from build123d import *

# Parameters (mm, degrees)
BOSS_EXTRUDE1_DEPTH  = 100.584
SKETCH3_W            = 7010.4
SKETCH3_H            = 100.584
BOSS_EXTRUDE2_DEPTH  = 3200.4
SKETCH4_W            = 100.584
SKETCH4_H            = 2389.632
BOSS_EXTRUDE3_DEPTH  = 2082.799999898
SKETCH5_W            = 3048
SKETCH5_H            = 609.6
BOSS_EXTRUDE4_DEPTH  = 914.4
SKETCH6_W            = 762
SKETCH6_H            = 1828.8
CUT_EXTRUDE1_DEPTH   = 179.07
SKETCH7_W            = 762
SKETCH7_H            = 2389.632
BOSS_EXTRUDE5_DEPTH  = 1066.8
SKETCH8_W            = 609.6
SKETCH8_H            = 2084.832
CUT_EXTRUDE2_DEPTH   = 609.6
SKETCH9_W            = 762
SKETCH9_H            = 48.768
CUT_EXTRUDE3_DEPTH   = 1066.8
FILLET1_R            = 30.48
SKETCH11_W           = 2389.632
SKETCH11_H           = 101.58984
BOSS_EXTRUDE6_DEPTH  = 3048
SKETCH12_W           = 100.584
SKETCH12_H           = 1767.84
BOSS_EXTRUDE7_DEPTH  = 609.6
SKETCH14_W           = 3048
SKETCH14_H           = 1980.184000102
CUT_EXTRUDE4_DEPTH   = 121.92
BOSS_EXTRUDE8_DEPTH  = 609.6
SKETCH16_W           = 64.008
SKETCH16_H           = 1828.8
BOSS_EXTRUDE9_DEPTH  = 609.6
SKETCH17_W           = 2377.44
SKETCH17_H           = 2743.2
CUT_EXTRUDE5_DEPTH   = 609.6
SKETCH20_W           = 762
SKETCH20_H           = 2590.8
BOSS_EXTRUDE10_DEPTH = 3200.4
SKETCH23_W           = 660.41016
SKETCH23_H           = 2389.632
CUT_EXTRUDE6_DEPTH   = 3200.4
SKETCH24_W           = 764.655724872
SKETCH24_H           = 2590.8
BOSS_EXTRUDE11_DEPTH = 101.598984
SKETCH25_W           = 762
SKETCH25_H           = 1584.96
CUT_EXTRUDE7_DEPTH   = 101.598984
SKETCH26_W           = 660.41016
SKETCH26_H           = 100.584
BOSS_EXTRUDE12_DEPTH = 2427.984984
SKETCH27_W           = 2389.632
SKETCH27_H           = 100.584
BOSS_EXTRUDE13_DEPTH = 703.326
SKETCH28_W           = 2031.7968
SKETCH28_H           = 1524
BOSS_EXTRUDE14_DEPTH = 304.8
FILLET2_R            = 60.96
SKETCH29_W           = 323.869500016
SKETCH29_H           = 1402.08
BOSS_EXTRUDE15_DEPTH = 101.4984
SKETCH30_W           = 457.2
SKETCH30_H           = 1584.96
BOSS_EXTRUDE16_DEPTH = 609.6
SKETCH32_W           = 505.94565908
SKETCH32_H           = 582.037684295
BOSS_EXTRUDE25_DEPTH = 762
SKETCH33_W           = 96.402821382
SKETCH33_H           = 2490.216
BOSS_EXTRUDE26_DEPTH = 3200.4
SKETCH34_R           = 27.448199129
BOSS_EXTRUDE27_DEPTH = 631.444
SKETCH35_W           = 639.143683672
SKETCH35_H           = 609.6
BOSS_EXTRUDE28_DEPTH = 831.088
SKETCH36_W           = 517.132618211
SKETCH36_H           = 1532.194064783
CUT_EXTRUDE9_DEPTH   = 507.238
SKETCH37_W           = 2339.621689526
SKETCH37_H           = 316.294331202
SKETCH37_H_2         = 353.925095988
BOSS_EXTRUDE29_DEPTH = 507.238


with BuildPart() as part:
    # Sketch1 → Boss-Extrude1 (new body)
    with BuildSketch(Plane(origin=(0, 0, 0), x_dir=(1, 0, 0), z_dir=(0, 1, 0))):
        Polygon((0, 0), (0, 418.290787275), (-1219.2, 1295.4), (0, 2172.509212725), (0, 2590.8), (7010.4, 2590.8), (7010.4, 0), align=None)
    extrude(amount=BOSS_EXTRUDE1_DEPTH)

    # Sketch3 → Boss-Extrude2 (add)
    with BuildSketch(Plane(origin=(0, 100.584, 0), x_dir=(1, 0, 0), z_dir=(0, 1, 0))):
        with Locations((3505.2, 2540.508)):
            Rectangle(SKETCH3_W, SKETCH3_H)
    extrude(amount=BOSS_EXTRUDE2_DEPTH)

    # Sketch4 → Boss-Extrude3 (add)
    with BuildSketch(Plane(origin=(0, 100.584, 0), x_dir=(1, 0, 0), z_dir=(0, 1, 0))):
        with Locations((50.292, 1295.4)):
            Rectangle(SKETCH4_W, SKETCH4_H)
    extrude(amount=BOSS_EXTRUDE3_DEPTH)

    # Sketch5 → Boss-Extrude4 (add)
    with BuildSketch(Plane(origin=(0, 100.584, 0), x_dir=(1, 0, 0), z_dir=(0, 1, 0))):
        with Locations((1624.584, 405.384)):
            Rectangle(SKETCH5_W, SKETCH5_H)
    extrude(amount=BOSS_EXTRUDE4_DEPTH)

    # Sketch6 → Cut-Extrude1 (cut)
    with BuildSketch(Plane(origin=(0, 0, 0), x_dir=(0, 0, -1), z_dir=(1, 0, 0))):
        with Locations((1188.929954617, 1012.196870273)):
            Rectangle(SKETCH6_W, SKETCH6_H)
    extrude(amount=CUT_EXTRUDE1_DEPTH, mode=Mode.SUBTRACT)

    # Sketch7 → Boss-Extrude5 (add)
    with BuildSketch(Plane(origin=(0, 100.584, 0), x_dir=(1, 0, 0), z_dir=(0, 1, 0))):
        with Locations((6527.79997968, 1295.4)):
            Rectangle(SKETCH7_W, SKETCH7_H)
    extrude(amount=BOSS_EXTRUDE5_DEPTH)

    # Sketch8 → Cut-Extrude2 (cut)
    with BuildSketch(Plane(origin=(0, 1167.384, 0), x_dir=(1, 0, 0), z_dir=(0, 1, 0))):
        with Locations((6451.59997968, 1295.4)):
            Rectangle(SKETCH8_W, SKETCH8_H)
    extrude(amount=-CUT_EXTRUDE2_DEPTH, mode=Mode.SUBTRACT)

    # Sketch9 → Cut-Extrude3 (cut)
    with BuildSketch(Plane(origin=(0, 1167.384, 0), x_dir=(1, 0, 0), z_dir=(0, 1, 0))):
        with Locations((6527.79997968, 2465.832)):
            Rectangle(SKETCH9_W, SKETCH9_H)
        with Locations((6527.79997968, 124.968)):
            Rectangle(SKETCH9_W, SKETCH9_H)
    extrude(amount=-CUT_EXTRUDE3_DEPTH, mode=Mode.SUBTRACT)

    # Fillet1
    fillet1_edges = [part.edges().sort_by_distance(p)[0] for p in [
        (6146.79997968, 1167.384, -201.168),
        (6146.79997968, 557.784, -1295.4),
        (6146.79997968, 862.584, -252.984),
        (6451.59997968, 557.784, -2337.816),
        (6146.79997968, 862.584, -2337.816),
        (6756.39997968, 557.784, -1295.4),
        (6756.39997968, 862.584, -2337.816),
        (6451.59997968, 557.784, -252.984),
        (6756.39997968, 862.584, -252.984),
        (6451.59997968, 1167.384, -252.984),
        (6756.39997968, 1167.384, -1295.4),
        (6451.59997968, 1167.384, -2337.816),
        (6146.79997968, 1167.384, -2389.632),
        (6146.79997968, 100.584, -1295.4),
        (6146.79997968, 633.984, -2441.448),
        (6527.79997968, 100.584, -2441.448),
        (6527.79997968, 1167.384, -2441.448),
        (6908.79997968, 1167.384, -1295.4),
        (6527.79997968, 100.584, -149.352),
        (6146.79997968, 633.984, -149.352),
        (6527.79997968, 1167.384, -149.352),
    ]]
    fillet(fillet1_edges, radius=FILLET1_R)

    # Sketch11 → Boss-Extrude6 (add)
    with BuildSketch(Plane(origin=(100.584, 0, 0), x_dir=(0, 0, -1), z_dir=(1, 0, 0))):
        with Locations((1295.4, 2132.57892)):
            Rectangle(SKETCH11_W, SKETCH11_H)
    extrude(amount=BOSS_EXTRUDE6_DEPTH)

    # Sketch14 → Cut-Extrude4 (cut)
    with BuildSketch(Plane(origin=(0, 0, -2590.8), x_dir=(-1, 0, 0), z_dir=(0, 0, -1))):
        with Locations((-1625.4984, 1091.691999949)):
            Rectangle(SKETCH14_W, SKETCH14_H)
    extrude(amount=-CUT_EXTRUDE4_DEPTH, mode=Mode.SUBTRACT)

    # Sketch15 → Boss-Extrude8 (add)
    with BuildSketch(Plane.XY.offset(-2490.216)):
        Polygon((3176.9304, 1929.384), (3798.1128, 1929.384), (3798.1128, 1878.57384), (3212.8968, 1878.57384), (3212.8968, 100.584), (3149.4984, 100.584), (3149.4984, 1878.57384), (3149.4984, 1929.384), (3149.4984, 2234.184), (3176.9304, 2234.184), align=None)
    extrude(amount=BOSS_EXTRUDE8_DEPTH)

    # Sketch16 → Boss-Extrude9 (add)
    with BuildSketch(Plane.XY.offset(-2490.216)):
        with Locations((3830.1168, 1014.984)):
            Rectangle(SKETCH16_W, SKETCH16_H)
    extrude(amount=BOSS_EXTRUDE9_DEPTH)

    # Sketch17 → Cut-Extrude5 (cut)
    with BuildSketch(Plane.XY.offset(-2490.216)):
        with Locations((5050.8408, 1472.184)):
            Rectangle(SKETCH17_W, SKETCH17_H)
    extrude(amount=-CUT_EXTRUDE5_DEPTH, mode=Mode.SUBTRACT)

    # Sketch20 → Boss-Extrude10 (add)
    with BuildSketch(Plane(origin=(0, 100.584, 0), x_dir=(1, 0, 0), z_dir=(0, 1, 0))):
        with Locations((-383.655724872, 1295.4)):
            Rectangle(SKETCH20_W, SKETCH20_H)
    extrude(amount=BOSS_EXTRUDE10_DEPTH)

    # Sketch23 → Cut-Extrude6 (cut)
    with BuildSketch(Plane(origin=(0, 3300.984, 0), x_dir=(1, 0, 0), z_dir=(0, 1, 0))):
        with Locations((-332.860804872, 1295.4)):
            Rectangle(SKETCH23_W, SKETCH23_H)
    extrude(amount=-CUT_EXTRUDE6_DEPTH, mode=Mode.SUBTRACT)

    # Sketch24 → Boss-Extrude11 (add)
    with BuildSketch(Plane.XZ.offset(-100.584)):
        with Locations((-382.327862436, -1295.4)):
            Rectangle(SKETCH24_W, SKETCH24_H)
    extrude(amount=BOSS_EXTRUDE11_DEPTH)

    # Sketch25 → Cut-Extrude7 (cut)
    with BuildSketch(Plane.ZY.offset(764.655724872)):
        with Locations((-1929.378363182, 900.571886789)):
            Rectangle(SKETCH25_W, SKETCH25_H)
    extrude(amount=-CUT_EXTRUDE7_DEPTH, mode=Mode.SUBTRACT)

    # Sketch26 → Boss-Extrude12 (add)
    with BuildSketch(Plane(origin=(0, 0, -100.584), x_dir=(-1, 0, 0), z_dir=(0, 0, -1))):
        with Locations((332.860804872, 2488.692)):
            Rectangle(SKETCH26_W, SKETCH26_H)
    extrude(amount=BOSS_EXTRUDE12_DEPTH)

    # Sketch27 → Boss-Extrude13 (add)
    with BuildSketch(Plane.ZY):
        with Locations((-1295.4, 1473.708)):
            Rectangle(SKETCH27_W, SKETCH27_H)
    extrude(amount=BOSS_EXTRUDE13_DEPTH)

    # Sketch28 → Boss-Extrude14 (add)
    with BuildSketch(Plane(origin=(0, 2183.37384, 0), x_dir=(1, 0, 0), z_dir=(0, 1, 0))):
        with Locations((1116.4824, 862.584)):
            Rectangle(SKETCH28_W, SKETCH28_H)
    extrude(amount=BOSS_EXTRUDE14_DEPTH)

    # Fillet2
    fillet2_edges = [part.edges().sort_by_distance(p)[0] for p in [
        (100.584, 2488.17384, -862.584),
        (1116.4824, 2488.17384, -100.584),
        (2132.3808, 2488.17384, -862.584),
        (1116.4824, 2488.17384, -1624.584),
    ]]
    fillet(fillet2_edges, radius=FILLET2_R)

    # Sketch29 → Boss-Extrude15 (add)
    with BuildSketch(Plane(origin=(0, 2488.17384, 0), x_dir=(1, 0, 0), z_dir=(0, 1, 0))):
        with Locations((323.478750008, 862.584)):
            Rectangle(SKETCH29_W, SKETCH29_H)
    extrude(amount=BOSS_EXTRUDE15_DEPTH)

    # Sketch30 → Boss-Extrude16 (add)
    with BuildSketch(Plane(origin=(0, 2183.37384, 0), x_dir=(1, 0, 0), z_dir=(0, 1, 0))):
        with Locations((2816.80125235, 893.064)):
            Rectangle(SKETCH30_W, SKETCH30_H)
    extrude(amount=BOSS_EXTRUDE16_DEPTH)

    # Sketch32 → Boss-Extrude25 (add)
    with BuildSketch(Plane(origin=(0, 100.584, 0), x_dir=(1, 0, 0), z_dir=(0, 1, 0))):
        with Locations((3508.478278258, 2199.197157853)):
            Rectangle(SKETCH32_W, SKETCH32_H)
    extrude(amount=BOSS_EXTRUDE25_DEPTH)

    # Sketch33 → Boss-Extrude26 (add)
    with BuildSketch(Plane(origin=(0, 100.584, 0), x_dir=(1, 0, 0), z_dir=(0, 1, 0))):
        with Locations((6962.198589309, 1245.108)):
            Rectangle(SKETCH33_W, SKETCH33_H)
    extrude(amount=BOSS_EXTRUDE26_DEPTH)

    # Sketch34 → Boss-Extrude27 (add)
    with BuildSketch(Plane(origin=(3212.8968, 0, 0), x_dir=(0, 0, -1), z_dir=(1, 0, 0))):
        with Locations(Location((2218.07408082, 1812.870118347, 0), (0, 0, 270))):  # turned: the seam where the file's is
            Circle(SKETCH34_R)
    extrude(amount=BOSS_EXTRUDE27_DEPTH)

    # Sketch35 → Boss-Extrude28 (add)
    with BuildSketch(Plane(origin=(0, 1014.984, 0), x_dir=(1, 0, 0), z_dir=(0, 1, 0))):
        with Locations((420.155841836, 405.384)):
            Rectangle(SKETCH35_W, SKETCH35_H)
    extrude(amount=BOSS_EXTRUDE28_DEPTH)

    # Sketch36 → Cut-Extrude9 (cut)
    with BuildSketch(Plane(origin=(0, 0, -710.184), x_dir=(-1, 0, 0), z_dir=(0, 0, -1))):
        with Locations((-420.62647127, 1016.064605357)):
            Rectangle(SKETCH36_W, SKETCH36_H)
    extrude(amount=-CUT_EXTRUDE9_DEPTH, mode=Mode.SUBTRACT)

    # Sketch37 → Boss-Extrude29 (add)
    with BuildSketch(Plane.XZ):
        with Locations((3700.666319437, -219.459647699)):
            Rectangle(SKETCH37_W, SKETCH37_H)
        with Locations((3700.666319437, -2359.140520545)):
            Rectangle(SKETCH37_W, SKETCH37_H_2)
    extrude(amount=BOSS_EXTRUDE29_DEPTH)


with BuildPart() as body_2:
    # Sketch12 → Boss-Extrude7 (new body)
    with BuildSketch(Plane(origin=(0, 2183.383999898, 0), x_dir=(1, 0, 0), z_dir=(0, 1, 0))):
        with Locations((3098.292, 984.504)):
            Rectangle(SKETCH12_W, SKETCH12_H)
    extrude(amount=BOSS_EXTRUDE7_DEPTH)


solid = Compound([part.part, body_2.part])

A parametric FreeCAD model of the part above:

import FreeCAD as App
import Part
import Sketcher
from FreeCAD import Vector
Q = App.Units.Quantity


def edges_at(feature, points):
    """Names of the edges that pass closest to the given points."""
    edges = feature.Shape.Edges
    near = lambda p: min(range(len(edges)), key=lambda i: edges[i].distToShape(Part.Vertex(*p))[0])
    return sorted({f"Edge{near(p) + 1}" for p in points})


def add_polygon(sketch, points):
    """Adds a closed chain of lines whose ends are joined by coincident constraints."""
    first, n = sketch.GeometryCount, len(points)
    for a, b in zip(points, points[1:] + points[:1]):
        sketch.addGeometry(Part.LineSegment(App.Vector(*a, 0), App.Vector(*b, 0)), False)
    for i in range(n):
        sketch.addConstraint(Sketcher.Constraint("Coincident", first + i, 2, first + (i + 1) % n, 1))

doc = App.newDocument("Part")
body = doc.addObject("PartDesign::Body", "Body")

sketch1 = body.newObject("Sketcher::SketchObject", "Sketch")
sketch1.AttachmentSupport = (doc.getObject("XZ_Plane"), [""])
sketch1.MapMode = "FlatFace"
add_polygon(sketch1, [(0, -418.290787), (0, 0), (7010.4, 0), (7010.4, -2590.8), (0, -2590.8), (0, -2172.509213), (-1219.2, -1295.4)])
sketch1.addConstraint([
    Sketcher.Constraint("Vertical", 0),
    Sketcher.Constraint("Horizontal", 1),
    Sketcher.Constraint("Vertical", 2),
    Sketcher.Constraint("Horizontal", 3),
    Sketcher.Constraint("Vertical", 4),
    Sketcher.Constraint("Coincident", 0, 2, -1, 1),
    Sketcher.Constraint("PointOnObject", 3, 2, -2),
    Sketcher.Constraint("Equal", 0, 4),
    Sketcher.Constraint("Equal", 5, 6),
    Sketcher.Constraint("DistanceX", 1, 1, 1, 2, Q("276 in")),
    Sketcher.Constraint("DistanceY", 2, 2, 2, 1, Q("102 in")),
    Sketcher.Constraint("DistanceX", 5, 2, -1, 1, Q("48 in")),
    Sketcher.Constraint("Distance", 5, 1501.921839),
])
pad1 = body.newObject("PartDesign::Pad", "Pad")
pad1.Profile = sketch1
pad1.Length = Q("3.96 in")
pad1.Reversed = True

sketch2 = body.newObject("Sketcher::SketchObject", "Sketch001")
sketch2.AttachmentSupport = (doc.getObject("XZ_Plane"), [""])
sketch2.MapMode = "FlatFace"
sketch2.AttachmentOffset = App.Placement(Vector(0, 0, -3.96 * 25.4), App.Rotation())
add_polygon(sketch2, [(0, -2590.8), (0, -2490.216), (7010.4, -2490.216), (7010.4, -2590.8)])
sketch2.addConstraint([
    Sketcher.Constraint("Vertical", 0),
    Sketcher.Constraint("Horizontal", 1),
    Sketcher.Constraint("Vertical", 2),
    Sketcher.Constraint("Horizontal", 3),
    Sketcher.Constraint("PointOnObject", 0, 2, -2),
    Sketcher.Constraint("DistanceX", 1, 1, 1, 2, Q("276 in")),
    Sketcher.Constraint("DistanceY", 2, 2, -1, 1, Q("102 in")),
    Sketcher.Constraint("DistanceY", 0, 1, 0, 2, Q("3.96 in")),
])
pad2 = body.newObject("PartDesign::Pad", "Pad001")
pad2.Profile = sketch2
pad2.Length = Q("126 in")
pad2.Reversed = True

sketch3 = body.newObject("Sketcher::SketchObject", "Sketch002")
sketch3.AttachmentSupport = (doc.getObject("XZ_Plane"), [""])
sketch3.MapMode = "FlatFace"
sketch3.AttachmentOffset = App.Placement(Vector(0, 0, -3.96 * 25.4), App.Rotation())
add_polygon(sketch3, [(0, -2490.216), (0, -100.584), (100.584, -100.584), (100.584, -2490.216)])
sketch3.addConstraint([
    Sketcher.Constraint("Vertical", 0),
    Sketcher.Constraint("Horizontal", 1),
    Sketcher.Constraint("Vertical", 2),
    Sketcher.Constraint("Horizontal", 3),
    Sketcher.Constraint("PointOnObject", 0, 2, -2),
    Sketcher.Constraint("DistanceX", 1, 1, 1, 2, Q("3.96 in")),
    Sketcher.Constraint("DistanceY", 0, 1, 0, 2, Q("94.08 in")),
    Sketcher.Constraint("DistanceY", 0, 2, -1, 1, Q("3.96 in")),
])
pad3 = body.newObject("PartDesign::Pad", "Pad002")
pad3.Profile = sketch3
pad3.Length = Q("82 in")
pad3.Reversed = True

sketch4 = body.newObject("Sketcher::SketchObject", "Sketch003")
sketch4.AttachmentSupport = (doc.getObject("XZ_Plane"), [""])
sketch4.MapMode = "FlatFace"
sketch4.AttachmentOffset = App.Placement(Vector(0, 0, -3.96 * 25.4), App.Rotation())
add_polygon(sketch4, [(100.584, -710.184), (100.584, -100.584), (3148.584, -100.584), (3148.584, -710.184)])
sketch4.addConstraint([
    Sketcher.Constraint("Vertical", 0),
    Sketcher.Constraint("Horizontal", 1),
    Sketcher.Constraint("Vertical", 2),
    Sketcher.Constraint("Horizontal", 3),
    Sketcher.Constraint("DistanceX", 1, 1, 1, 2, Q("120 in")),
    Sketcher.Constraint("DistanceY", 0, 1, 0, 2, Q("24 in")),
    Sketcher.Constraint("DistanceX", -1, 1, 0, 2, Q("3.96 in")),
    Sketcher.Constraint("DistanceY", 0, 2, -1, 1, Q("3.96 in")),
])
pad4 = body.newObject("PartDesign::Pad", "Pad003")
pad4.Profile = sketch4
pad4.Length = Q("36 in")
pad4.Reversed = True

sketch5 = body.newObject("Sketcher::SketchObject", "Sketch004")
sketch5.AttachmentSupport = (doc.getObject("YZ_Plane"), [""])
sketch5.MapMode = "FlatFace"
add_polygon(sketch5, [(1926.59687, -807.929955), (97.79687, -807.929955), (97.79687, -1569.929955), (1926.59687, -1569.929955)])
sketch5.addConstraint([
    Sketcher.Constraint("Horizontal", 0),
    Sketcher.Constraint("Vertical", 1),
    Sketcher.Constraint("Horizontal", 2),
    Sketcher.Constraint("Vertical", 3),
    Sketcher.Constraint("DistanceX", 0, 2, 0, 1, Q("72 in")),
    Sketcher.Constraint("DistanceY", 1, 2, 1, 1, Q("30 in")),
    Sketcher.Constraint("DistanceX", -1, 1, 0, 2, 97.79687),
    Sketcher.Constraint("DistanceY", 0, 2, -1, 1, 807.929955),
])
pocket1 = body.newObject("PartDesign::Pocket", "Pocket")
pocket1.Profile = sketch5
pocket1.Length = Q("7.05 in")
pocket1.Reversed = True

sketch6 = body.newObject("Sketcher::SketchObject", "Sketch005")
sketch6.AttachmentSupport = (doc.getObject("XZ_Plane"), [""])
sketch6.MapMode = "FlatFace"
sketch6.AttachmentOffset = App.Placement(Vector(0, 0, -3.96 * 25.4), App.Rotation())
add_polygon(sketch6, [(6146.79998, -2490.216), (6146.79998, -100.584), (6908.79998, -100.584), (6908.79998, -2490.216)])
sketch6.addConstraint([
    Sketcher.Constraint("Vertical", 0),
    Sketcher.Constraint("Horizontal", 1),
    Sketcher.Constraint("Vertical", 2),
    Sketcher.Constraint("Horizontal", 3),
    Sketcher.Constraint("DistanceX", 1, 1, 1, 2, Q("30 in")),
    Sketcher.Constraint("DistanceY", 0, 1, 0, 2, Q("94.08 in")),
    Sketcher.Constraint("DistanceY", 0, 2, -1, 1, Q("3.96 in")),
    Sketcher.Constraint("DistanceX", -1, 1, 0, 2, 6146.79998),
])
pad5 = body.newObject("PartDesign::Pad", "Pad004")
pad5.Profile = sketch6
pad5.Length = Q("42 in")
pad5.Reversed = True

sketch7 = body.newObject("Sketcher::SketchObject", "Sketch006")
sketch7.AttachmentSupport = (doc.getObject("XZ_Plane"), [""])
sketch7.MapMode = "FlatFace"
sketch7.AttachmentOffset = App.Placement(Vector(0, 0, -45.96 * 25.4), App.Rotation())
add_polygon(sketch7, [(6146.79998, -2337.816), (6146.79998, -252.984), (6756.39998, -252.984), (6756.39998, -2337.816)])
sketch7.addConstraint([
    Sketcher.Constraint("Vertical", 0),
    Sketcher.Constraint("Horizontal", 1),
    Sketcher.Constraint("Vertical", 2),
    Sketcher.Constraint("Horizontal", 3),
    Sketcher.Constraint("DistanceX", 1, 1, 1, 2, Q("24 in")),
    Sketcher.Constraint("DistanceY", 0, 1, 0, 2, Q("82.08 in")),
    Sketcher.Constraint("DistanceY", 0, 2, -1, 1, Q("9.96 in")),
    Sketcher.Constraint("DistanceX", -1, 1, 0, 2, 6146.79998),
])
pocket2 = body.newObject("PartDesign::Pocket", "Pocket001")
pocket2.Profile = sketch7
pocket2.Length = Q("24 in")
pocket2.Reversed = True

sketch8 = body.newObject("Sketcher::SketchObject", "Sketch007")
sketch8.AttachmentSupport = (doc.getObject("XZ_Plane"), [""])
sketch8.MapMode = "FlatFace"
sketch8.AttachmentOffset = App.Placement(Vector(0, 0, -45.96 * 25.4), App.Rotation())
add_polygon(sketch8, [(6146.79998, -2490.216), (6146.79998, -2441.448), (6908.79998, -2441.448), (6908.79998, -2490.216)])
add_polygon(sketch8, [(6146.79998, -149.352), (6146.79998, -100.584), (6908.79998, -100.584), (6908.79998, -149.352)])
sketch8.addConstraint([
    Sketcher.Constraint("Vertical", 0),
    Sketcher.Constraint("Horizontal", 1),
    Sketcher.Constraint("Vertical", 2),
    Sketcher.Constraint("Horizontal", 3),
    Sketcher.Constraint("Vertical", 4),
    Sketcher.Constraint("Horizontal", 5),
    Sketcher.Constraint("Vertical", 6),
    Sketcher.Constraint("Horizontal", 7),
    Sketcher.Constraint("Vertical", 3, 2, 4, 2),
    Sketcher.Constraint("Vertical", 2, 2, 5, 2),
    Sketcher.Constraint("Equal", 2, 4),
    Sketcher.Constraint("DistanceX", 1, 1, 1, 2, Q("30 in")),
    Sketcher.Constraint("DistanceY", 0, 1, 0, 2, Q("1.92 in")),
    Sketcher.Constraint("DistanceY", 0, 2, -1, 1, Q("96.12 in")),
    Sketcher.Constraint("DistanceY", 4, 2, -1, 1, Q("3.96 in")),
    Sketcher.Constraint("DistanceX", -1, 1, 0, 2, 6146.79998),
])
pocket3 = body.newObject("PartDesign::Pocket", "Pocket002")
pocket3.Profile = sketch8
pocket3.Length = Q("42 in")
pocket3.Reversed = True
doc.recompute()

fillet = body.newObject("PartDesign::Fillet", "Fillet")
fillet.Base = (pocket3, edges_at(pocket3, [
    (6146.8, 1167.384, -201.168),
    (6146.8, 557.784, -1295.4),
    (6146.8, 862.584, -252.984),
    (6451.6, 557.784, -2337.816),
    (6146.8, 862.584, -2337.816),
    (6756.4, 557.784, -1295.4),
    (6756.4, 862.584, -2337.816),
    (6451.6, 557.784, -252.984),
    (6756.4, 862.584, -252.984),
    (6451.6, 1167.384, -252.984),
    (6756.4, 1167.384, -1295.4),
    (6451.6, 1167.384, -2337.816),
    (6146.8, 1167.384, -2389.632),
    (6146.8, 100.584, -1295.4),
    (6146.8, 633.984, -2441.448),
    (6527.8, 100.584, -2441.448),
    (6527.8, 1167.384, -2441.448),
    (6908.8, 1167.384, -1295.4),
    (6527.8, 100.584, -149.352),
    (6146.8, 633.984, -149.352),
    (6527.8, 1167.384, -149.352),
]))
fillet.Radius = Q("1.2 in")

sketch9 = body.newObject("Sketcher::SketchObject", "Sketch008")
sketch9.AttachmentSupport = (doc.getObject("YZ_Plane"), [""])
sketch9.MapMode = "FlatFace"
sketch9.AttachmentOffset = App.Placement(Vector(0, 0, 3.96 * 25.4), App.Rotation())
add_polygon(sketch9, [(2183.37384, -100.584), (2081.784, -100.584), (2081.784, -2490.216), (2183.37384, -2490.216)])
sketch9.addConstraint([
    Sketcher.Constraint("Horizontal", 0),
    Sketcher.Constraint("Vertical", 1),
    Sketcher.Constraint("Horizontal", 2),
    Sketcher.Constraint("Vertical", 3),
    Sketcher.Constraint("DistanceY", 1, 2, 1, 1, Q("94.08 in")),
    Sketcher.Constraint("DistanceX", -1, 1, 0, 2, Q("81.96 in")),
    Sketcher.Constraint("DistanceY", 0, 2, -1, 1, Q("3.96 in")),
    Sketcher.Constraint("DistanceX", 0, 2, 0, 1, Q("3.9996 in")),
])
pad6 = body.newObject("PartDesign::Pad", "Pad005")
pad6.Profile = sketch9
pad6.Length = Q("120 in")

sketch10 = body.newObject("Sketcher::SketchObject", "Sketch009")
sketch10.AttachmentSupport = (doc.getObject("XY_Plane"), [""])
sketch10.MapMode = "FlatFace"
sketch10.AttachmentOffset = App.Placement(Vector(0, 0, -102 * 25.4), App.Rotation())
add_polygon(sketch10, [(3149.4984, 2081.784), (3149.4984, 101.6), (101.4984, 101.6), (101.4984, 2081.784)])
sketch10.addConstraint([
    Sketcher.Constraint("Vertical", 0),
    Sketcher.Constraint("Horizontal", 1),
    Sketcher.Constraint("Vertical", 2),
    Sketcher.Constraint("Horizontal", 3),
    Sketcher.Constraint("DistanceX", 1, 2, 1, 1, Q("120 in")),
    Sketcher.Constraint("DistanceY", -1, 1, 0, 2, Q("4 in")),
    Sketcher.Constraint("DistanceY", 0, 2, 0, 1, Q("77.96 in")),
    Sketcher.Constraint("DistanceX", -1, 1, 0, 2, Q("123.996 in")),
])
pocket4 = body.newObject("PartDesign::Pocket", "Pocket003")
pocket4.Profile = sketch10
pocket4.Length = Q("4.8 in")
pocket4.Reversed = True

sketch11 = body.newObject("Sketcher::SketchObject", "Sketch010")
sketch11.AttachmentSupport = (doc.getObject("XY_Plane"), [""])
sketch11.MapMode = "FlatFace"
sketch11.AttachmentOffset = App.Placement(Vector(0, 0, -98.04 * 25.4), App.Rotation())
add_polygon(sketch11, [(3798.1128, 1929.384), (3176.9304, 1929.384), (3176.9304, 2234.184), (3149.4984, 2234.184), (3149.4984, 100.584), (3212.8968, 100.584), (3212.8968, 1878.57384), (3798.1128, 1878.57384)])
sketch11.addConstraint([
    Sketcher.Constraint("Horizontal", 0),
    Sketcher.Constraint("Vertical", 1),
    Sketcher.Constraint("Horizontal", 2),
    Sketcher.Constraint("Vertical", 3),
    Sketcher.Constraint("Horizontal", 4),
    Sketcher.Constraint("Vertical", 5),
    Sketcher.Constraint("Horizontal", 6),
    Sketcher.Constraint("Vertical", 7),
    Sketcher.Constraint("DistanceY", 1, 1, 1, 2, Q("12 in")),
    Sketcher.Constraint("DistanceY", 3, 2, 3, 1, Q("84 in")),
    Sketcher.Constraint("DistanceX", 2, 2, 2, 1, Q("1.08 in")),
    Sketcher.Constraint("DistanceX", 6, 1, 6, 2, Q("23.04 in")),
    Sketcher.Constraint("DistanceX", 0, 2, 0, 1, Q("24.456 in")),
    Sketcher.Constraint("DistanceY", -1, 1, 0, 2, Q("75.96 in")),
    Sketcher.Constraint("DistanceY", 5, 1, 5, 2, Q("69.9996 in")),
    Sketcher.Constraint("DistanceX", -1, 1, 0, 2, Q("125.076 in")),
])
pad7 = body.newObject("PartDesign::Pad", "Pad006")
pad7.Profile = sketch11
pad7.Length = Q("24 in")

sketch12 = body.newObject("Sketcher::SketchObject", "Sketch011")
sketch12.AttachmentSupport = (doc.getObject("XY_Plane"), [""])
sketch12.MapMode = "FlatFace"
sketch12.AttachmentOffset = App.Placement(Vector(0, 0, -98.04 * 25.4), App.Rotation())
add_polygon(sketch12, [(3798.1128, 1929.384), (3798.1128, 100.584), (3862.1208, 100.584), (3862.1208, 1929.384)])
sketch12.addConstraint([
    Sketcher.Constraint("Vertical", 0),
    Sketcher.Constraint("Horizontal", 1),
    Sketcher.Constraint("Vertical", 2),
    Sketcher.Constraint("Horizontal", 3),
    Sketcher.Constraint("DistanceY", 0, 2, 0, 1, Q("72 in")),
    Sketcher.Constraint("DistanceX", 1, 1, 1, 2, Q("2.52 in")),
    Sketcher.Constraint("DistanceY", -1, 1, 0, 2, Q("3.96 in")),
    Sketcher.Constraint("DistanceX", -1, 1, 0, 2, Q("149.532 in")),
])
pad8 = body.newObject("PartDesign::Pad", "Pad007")
pad8.Profile = sketch12
pad8.Length = Q("24 in")

sketch13 = body.newObject("Sketcher::SketchObject", "Sketch012")
sketch13.AttachmentSupport = (doc.getObject("XY_Plane"), [""])
sketch13.MapMode = "FlatFace"
sketch13.AttachmentOffset = App.Placement(Vector(0, 0, -98.04 * 25.4), App.Rotation())
add_polygon(sketch13, [(3862.1208, 2843.784), (3862.1208, 100.584), (6239.5608, 100.584), (6239.5608, 2843.784)])
sketch13.addConstraint([
    Sketcher.Constraint("Vertical", 0),
    Sketcher.Constraint("Horizontal", 1),
    Sketcher.Constraint("Vertical", 2),
    Sketcher.Constraint("Horizontal", 3),
    Sketcher.Constraint("DistanceY", 0, 2, 0, 1, Q("108 in")),
    Sketcher.Constraint("DistanceX", 1, 1, 1, 2, Q("93.6 in")),
    Sketcher.Constraint("DistanceY", -1, 1, 0, 2, Q("3.96 in")),
    Sketcher.Constraint("DistanceX", -1, 1, 0, 2, Q("152.052 in")),
])
pocket5 = body.newObject("PartDesign::Pocket", "Pocket004")
pocket5.Profile = sketch13
pocket5.Length = Q("24 in")

sketch14 = body.newObject("Sketcher::SketchObject", "Sketch013")
sketch14.AttachmentSupport = (doc.getObject("XZ_Plane"), [""])
sketch14.MapMode = "FlatFace"
sketch14.AttachmentOffset = App.Placement(Vector(0, 0, -3.96 * 25.4), App.Rotation())
add_polygon(sketch14, [(-764.655725, -2590.8), (-764.655725, 0), (-2.655725, 0), (-2.655725, -2590.8)])
sketch14.addConstraint([
    Sketcher.Constraint("Vertical", 0),
    Sketcher.Constraint("Horizontal", 1),
    Sketcher.Constraint("Vertical", 2),
    Sketcher.Constraint("Horizontal", 3),
    Sketcher.Constraint("PointOnObject", 0, 2, -1),
    Sketcher.Constraint("DistanceX", 1, 1, 1, 2, Q("30 in")),
    Sketcher.Constraint("DistanceY", 0, 1, 0, 2, Q("102 in")),
    Sketcher.Constraint("DistanceX", 0, 2, -1, 1, 764.655725),
])
pad9 = body.newObject("PartDesign::Pad", "Pad008")
pad9.Profile = sketch14
pad9.Length = Q("126 in")
pad9.Reversed = True

sketch15 = body.newObject("Sketcher::SketchObject", "Sketch014")
sketch15.AttachmentSupport = (doc.getObject("XZ_Plane"), [""])
sketch15.MapMode = "FlatFace"
sketch15.AttachmentOffset = App.Placement(Vector(0, 0, -129.96 * 25.4), App.Rotation())
add_polygon(sketch15, [(-663.065885, -2490.216), (-663.065885, -100.584), (-2.655725, -100.584), (-2.655725, -2490.216)])
sketch15.addConstraint([
    Sketcher.Constraint("Vertical", 0),
    Sketcher.Constraint("Horizontal", 1),
    Sketcher.Constraint("Vertical", 2),
    Sketcher.Constraint("Horizontal", 3),
    Sketcher.Constraint("DistanceY", 0, 1, 0, 2, Q("94.08 in")),
    Sketcher.Constraint("DistanceY", 0, 2, -1, 1, Q("3.96 in")),
    Sketcher.Constraint("DistanceX", 1, 1, 1, 2, Q("26.0004 in")),
    Sketcher.Constraint("DistanceX", 0, 2, -1, 1, 663.065885),
])
pocket6 = body.newObject("PartDesign::Pocket", "Pocket005")
pocket6.Profile = sketch15
pocket6.Length = Q("126 in")
pocket6.Reversed = True

sketch16 = body.newObject("Sketcher::SketchObject", "Sketch015")
sketch16.AttachmentSupport = (doc.getObject("XZ_Plane"), [""])
sketch16.MapMode = "FlatFace"
sketch16.AttachmentOffset = App.Placement(Vector(0, 0, -3.96 * 25.4), App.Rotation())
add_polygon(sketch16, [(-764.655725, 0), (-764.655725, -2590.8), (0, -2590.8), (0, 0)])
sketch16.addConstraint([
    Sketcher.Constraint("Vertical", 0),
    Sketcher.Constraint("Horizontal", 1),
    Sketcher.Constraint("Vertical", 2),
    Sketcher.Constraint("Horizontal", 3),
    Sketcher.Constraint("Coincident", 2, 2, -1, 1),
    Sketcher.Constraint("DistanceY", 0, 2, 0, 1, Q("102 in")),
    Sketcher.Constraint("DistanceX", 1, 1, 1, 2, 764.655725),
])
pad10 = body.newObject("PartDesign::Pad", "Pad009")
pad10.Profile = sketch16
pad10.Length = 101.598984

sketch17 = body.newObject("Sketcher::SketchObject", "Sketch016")
sketch17.AttachmentSupport = (doc.getObject("YZ_Plane"), [""])
sketch17.MapMode = "FlatFace"
sketch17.AttachmentOffset = App.Placement(Vector(0, 0, -764.655725), App.Rotation())
add_polygon(sketch17, [(1693.051887, -2310.378363), (108.091887, -2310.378363), (108.091887, -1548.378363), (1693.051887, -1548.378363)])
sketch17.addConstraint([
    Sketcher.Constraint("Horizontal", 0),
    Sketcher.Constraint("Vertical", 1),
    Sketcher.Constraint("Horizontal", 2),
    Sketcher.Constraint("Vertical", 3),
    Sketcher.Constraint("DistanceY", 1, 1, 1, 2, Q("30 in")),
    Sketcher.Constraint("DistanceX", 0, 2, 0, 1, Q("62.4 in")),
    Sketcher.Constraint("DistanceX", -1, 1, 0, 2, 108.091887),
    Sketcher.Constraint("DistanceY", 0, 2, -1, 1, 2310.378363),
])
pocket7 = body.newObject("PartDesign::Pocket", "Pocket006")
pocket7.Profile = sketch17
pocket7.Length = 101.598984
pocket7.Reversed = True

sketch18 = body.newObject("Sketcher::SketchObject", "Sketch017")
sketch18.AttachmentSupport = (doc.getObject("XY_Plane"), [""])
sketch18.MapMode = "FlatFace"
sketch18.AttachmentOffset = App.Placement(Vector(0, 0, -3.96 * 25.4), App.Rotation())
add_polygon(sketch18, [(-2.655725, 2538.984), (-2.655725, 2438.4), (-663.065885, 2438.4), (-663.065885, 2538.984)])
sketch18.addConstraint([
    Sketcher.Constraint("Vertical", 0),
    Sketcher.Constraint("Horizontal", 1),
    Sketcher.Constraint("Vertical", 2),
    Sketcher.Constraint("Horizontal", 3),
    Sketcher.Constraint("DistanceY", -1, 1, 0, 2, Q("96 in")),
    Sketcher.Constraint("DistanceY", 0, 2, 0, 1, Q("3.96 in")),
    Sketcher.Constraint("DistanceX", 1, 2, 1, 1, Q("26.0004 in")),
    Sketcher.Constraint("DistanceX", 0, 2, -1, 1, 2.655725),
])
pad11 = body.newObject("PartDesign::Pad", "Pad010")
pad11.Profile = sketch18
pad11.Length = 2427.984984
pad11.Reversed = True

sketch19 = body.newObject("Sketcher::SketchObject", "Sketch018")
sketch19.AttachmentSupport = (doc.getObject("YZ_Plane"), [""])
sketch19.MapMode = "FlatFace"
add_polygon(sketch19, [(1524, -2490.216), (1423.416, -2490.216), (1423.416, -100.584), (1524, -100.584)])
sketch19.addConstraint([
    Sketcher.Constraint("Horizontal", 0),
    Sketcher.Constraint("Vertical", 1),
    Sketcher.Constraint("Horizontal", 2),
    Sketcher.Constraint("Vertical", 3),
    Sketcher.Constraint("DistanceX", -1, 1, 2, 2, Q("60 in")),
    Sketcher.Constraint("DistanceX", 0, 2, 0, 1, Q("3.96 in")),
    Sketcher.Constraint("DistanceY", 1, 1, 1, 2, Q("94.08 in")),
    Sketcher.Constraint("DistanceY", 0, 2, -1, 1, Q("98.04 in")),
])
pad12 = body.newObject("PartDesign::Pad", "Pad011")
pad12.Profile = sketch19
pad12.Length = Q("27.69 in")
pad12.Reversed = True

sketch20 = body.newObject("Sketcher::SketchObject", "Sketch019")
sketch20.AttachmentSupport = (doc.getObject("XZ_Plane"), [""])
sketch20.MapMode = "FlatFace"
sketch20.AttachmentOffset = App.Placement(Vector(0, 0, -85.9596 * 25.4), App.Rotation())
add_polygon(sketch20, [(100.584, -1624.584), (100.584, -100.584), (2132.3808, -100.584), (2132.3808, -1624.584)])
sketch20.addConstraint([
    Sketcher.Constraint("Vertical", 0),
    Sketcher.Constraint("Horizontal", 1),
    Sketcher.Constraint("Vertical", 2),
    Sketcher.Constraint("Horizontal", 3),
    Sketcher.Constraint("DistanceY", 0, 1, 0, 2, Q("60 in")),
    Sketcher.Constraint("DistanceX", 1, 1, 1, 2, Q("79.992 in")),
    Sketcher.Constraint("DistanceX", -1, 1, 0, 2, Q("3.96 in")),
    Sketcher.Constraint("DistanceY", 0, 2, -1, 1, Q("3.96 in")),
])
pad13 = body.newObject("PartDesign::Pad", "Pad012")
pad13.Profile = sketch20
pad13.Length = Q("12 in")
pad13.Reversed = True
doc.recompute()

fillet2 = body.newObject("PartDesign::Fillet", "Fillet001")
fillet2.Base = (pad13, edges_at(pad13, [
    (100.584, 2488.174, -862.584),
    (1116.482, 2488.174, -100.584),
    (2132.381, 2488.174, -862.584),
    (1116.482, 2488.174, -1624.584),
]))
fillet2.Radius = Q("2.4 in")

sketch21 = body.newObject("Sketcher::SketchObject", "Sketch020")
sketch21.AttachmentSupport = (doc.getObject("XZ_Plane"), [""])
sketch21.MapMode = "FlatFace"
sketch21.AttachmentOffset = App.Placement(Vector(0, 0, -97.9596 * 25.4), App.Rotation())
add_polygon(sketch21, [(161.544, -1563.624), (161.544, -161.544), (485.4135, -161.544), (485.4135, -1563.624)])
sketch21.addConstraint([
    Sketcher.Constraint("Vertical", 0),
    Sketcher.Constraint("Horizontal", 1),
    Sketcher.Constraint("Vertical", 2),
    Sketcher.Constraint("Horizontal", 3),
    Sketcher.Constraint("DistanceY", 0, 1, 0, 2, Q("55.2 in")),
    Sketcher.Constraint("DistanceX", -1, 1, 0, 2, Q("6.36 in")),
    Sketcher.Constraint("DistanceY", 0, 2, -1, 1, Q("6.36 in")),
    Sketcher.Constraint("DistanceX", 1, 1, 1, 2, 323.8695),
])
pad14 = body.newObject("PartDesign::Pad", "Pad013")
pad14.Profile = sketch21
pad14.Length = Q("3.996 in")
pad14.Reversed = True

sketch22 = body.newObject("Sketcher::SketchObject", "Sketch021")
sketch22.AttachmentSupport = (doc.getObject("XZ_Plane"), [""])
sketch22.MapMode = "FlatFace"
sketch22.AttachmentOffset = App.Placement(Vector(0, 0, -85.9596 * 25.4), App.Rotation())
add_polygon(sketch22, [(2588.201252, -1685.544), (2588.201252, -100.584), (3045.401252, -100.584), (3045.401252, -1685.544)])
sketch22.addConstraint([
    Sketcher.Constraint("Vertical", 0),
    Sketcher.Constraint("Horizontal", 1),
    Sketcher.Constraint("Vertical", 2),
    Sketcher.Constraint("Horizontal", 3),
    Sketcher.Constraint("DistanceX", 1, 1, 1, 2, Q("18 in")),
    Sketcher.Constraint("DistanceY", 0, 1, 0, 2, Q("62.4 in")),
    Sketcher.Constraint("DistanceY", 0, 2, -1, 1, Q("3.96 in")),
    Sketcher.Constraint("DistanceX", -1, 1, 0, 2, 2588.201252),
])
pad15 = body.newObject("PartDesign::Pad", "Pad014")
pad15.Profile = sketch22
pad15.Length = Q("24 in")
pad15.Reversed = True

sketch23 = body.newObject("Sketcher::SketchObject", "Sketch022")
sketch23.AttachmentSupport = (doc.getObject("XZ_Plane"), [""])
sketch23.MapMode = "FlatFace"
sketch23.AttachmentOffset = App.Placement(Vector(0, 0, -3.96 * 25.4), App.Rotation())
add_polygon(sketch23, [(3255.505449, -2490.216), (3255.505449, -1908.178316), (3761.451108, -1908.178316), (3761.451108, -2490.216)])
sketch23.addConstraint([
    Sketcher.Constraint("Vertical", 0),
    Sketcher.Constraint("Horizontal", 1),
    Sketcher.Constraint("Vertical", 2),
    Sketcher.Constraint("Horizontal", 3),
    Sketcher.Constraint("DistanceY", 2, 2, -1, 1, Q("98.04 in")),
    Sketcher.Constraint("DistanceX", 1, 1, 1, 2, 505.945659),
    Sketcher.Constraint("DistanceY", 0, 1, 0, 2, 582.037684),
    Sketcher.Constraint("DistanceX", -1, 1, 0, 2, 3255.505449),
])
pad16 = body.newObject("PartDesign::Pad", "Pad015")
pad16.Profile = sketch23
pad16.Length = Q("30 in")
pad16.Reversed = True

sketch24 = body.newObject("Sketcher::SketchObject", "Sketch023")
sketch24.AttachmentSupport = (doc.getObject("XZ_Plane"), [""])
sketch24.MapMode = "FlatFace"
sketch24.AttachmentOffset = App.Placement(Vector(0, 0, -3.96 * 25.4), App.Rotation())
add_polygon(sketch24, [(6913.997179, -2490.216), (6913.997179, 0), (7010.4, 0), (7010.4, -2490.216)])
sketch24.addConstraint([
    Sketcher.Constraint("Vertical", 0),
    Sketcher.Constraint("Horizontal", 1),
    Sketcher.Constraint("Vertical", 2),
    Sketcher.Constraint("Horizontal", 3),
    Sketcher.Constraint("PointOnObject", 0, 2, -1),
    Sketcher.Constraint("DistanceX", -1, 1, 1, 2, Q("276 in")),
    Sketcher.Constraint("DistanceY", 0, 1, 0, 2, Q("98.04 in")),
    Sketcher.Constraint("DistanceX", 1, 1, 1, 2, 96.402821),
])
pad17 = body.newObject("PartDesign::Pad", "Pad016")
pad17.Profile = sketch24
pad17.Length = Q("126 in")
pad17.Reversed = True

sketch25 = body.newObject("Sketcher::SketchObject", "Sketch024")
sketch25.AttachmentSupport = (doc.getObject("YZ_Plane"), [""])
sketch25.MapMode = "FlatFace"
sketch25.AttachmentOffset = App.Placement(Vector(0, 0, 126.492 * 25.4), App.Rotation())
sketch25.addGeometry(Part.Circle(Vector(1812.870118, -2218.074081, 0), Vector(0, 0, 1), 27.448199), False)
sketch25.addConstraint([
    Sketcher.Constraint("Diameter", 0, 54.896398),
    Sketcher.Constraint("DistanceX", -1, 1, 0, 3, 1812.870118),
    Sketcher.Constraint("DistanceY", 0, 3, -1, 1, 2218.074081),
])
pad18 = body.newObject("PartDesign::Pad", "Pad017")
pad18.Profile = sketch25
pad18.Length = Q("24.86 in")

sketch26 = body.newObject("Sketcher::SketchObject", "Sketch025")
sketch26.AttachmentSupport = (doc.getObject("XZ_Plane"), [""])
sketch26.MapMode = "FlatFace"
sketch26.AttachmentOffset = App.Placement(Vector(0, 0, -39.96 * 25.4), App.Rotation())
add_polygon(sketch26, [(100.584, -710.184), (100.584, -100.584), (739.727684, -100.584), (739.727684, -710.184)])
sketch26.addConstraint([
    Sketcher.Constraint("Vertical", 0),
    Sketcher.Constraint("Horizontal", 1),
    Sketcher.Constraint("Vertical", 2),
    Sketcher.Constraint("Horizontal", 3),
    Sketcher.Constraint("DistanceY", 0, 1, 0, 2, Q("24 in")),
    Sketcher.Constraint("DistanceX", -1, 1, 0, 2, Q("3.96 in")),
    Sketcher.Constraint("DistanceY", 0, 2, -1, 1, Q("3.96 in")),
    Sketcher.Constraint("DistanceX", 1, 1, 1, 2, 639.143684),
])
pad19 = body.newObject("PartDesign::Pad", "Pad018")
pad19.Profile = sketch26
pad19.Length = Q("32.72 in")
pad19.Reversed = True

sketch27 = body.newObject("Sketcher::SketchObject", "Sketch026")
sketch27.AttachmentSupport = (doc.getObject("XY_Plane"), [""])
sketch27.MapMode = "FlatFace"
sketch27.AttachmentOffset = App.Placement(Vector(0, 0, -27.96 * 25.4), App.Rotation())
add_polygon(sketch27, [(679.19278, 1782.161638), (679.19278, 249.967573), (162.060162, 249.967573), (162.060162, 1782.161638)])
sketch27.addConstraint([
    Sketcher.Constraint("Vertical", 0),
    Sketcher.Constraint("Horizontal", 1),
    Sketcher.Constraint("Vertical", 2),
    Sketcher.Constraint("Horizontal", 3),
    Sketcher.Constraint("DistanceX", 1, 2, 1, 1, 517.132618),
    Sketcher.Constraint("DistanceY", 0, 2, 0, 1, 1532.194065),
    Sketcher.Constraint("DistanceX", -1, 1, 0, 2, 679.19278),
    Sketcher.Constraint("DistanceY", -1, 1, 0, 2, 249.967573),
])
pocket8 = body.newObject("PartDesign::Pocket", "Pocket007")
pocket8.Profile = sketch27
pocket8.Length = Q("19.97 in")
pocket8.Reversed = True

sketch28 = body.newObject("Sketcher::SketchObject", "Sketch027")
sketch28.AttachmentSupport = (doc.getObject("XZ_Plane"), [""])
sketch28.MapMode = "FlatFace"
add_polygon(sketch28, [(2530.855475, -61.312482), (2530.855475, -377.606813), (4870.477164, -377.606813), (4870.477164, -61.312482)])
add_polygon(sketch28, [(2530.855475, -2182.177973), (2530.855475, -2536.103069), (4870.477164, -2536.103069), (4870.477164, -2182.177973)])
sketch28.addConstraint([
    Sketcher.Constraint("Vertical", 0),
    Sketcher.Constraint("Horizontal", 1),
    Sketcher.Constraint("Vertical", 2),
    Sketcher.Constraint("Horizontal", 3),
    Sketcher.Constraint("Vertical", 4),
    Sketcher.Constraint("Horizontal", 5),
    Sketcher.Constraint("Vertical", 6),
    Sketcher.Constraint("Horizontal", 7),
    Sketcher.Constraint("Vertical", 3, 2, 4, 2),
    Sketcher.Constraint("Vertical", 2, 2, 5, 2),
    Sketcher.Constraint("DistanceX", 1, 1, 1, 2, 2339.62169),
    Sketcher.Constraint("DistanceY", 0, 2, 0, 1, 316.294331),
    Sketcher.Constraint("DistanceY", 4, 2, 4, 1, 353.925096),
    Sketcher.Constraint("DistanceY", 4, 2, -1, 1, 2536.103069),
    Sketcher.Constraint("DistanceY", 6, 2, 1, 2, 1804.571159),
    Sketcher.Constraint("DistanceX", -1, 1, 0, 2, 2530.855475),
])
pad20 = body.newObject("PartDesign::Pad", "Pad019")
pad20.Profile = sketch28
pad20.Length = Q("19.97 in")
body2 = doc.addObject("PartDesign::Body", "Body001")

sketch29 = body2.newObject("Sketcher::SketchObject", "Sketch028")
sketch29.AttachmentSupport = (doc.getObject("XZ_Plane001"), [""])
sketch29.MapMode = "FlatFace"
sketch29.AttachmentOffset = App.Placement(Vector(0, 0, -85.96 * 25.4), App.Rotation())
add_polygon(sketch29, [(3048, -1868.424), (3048, -100.584), (3148.584, -100.584), (3148.584, -1868.424)])
sketch29.addConstraint([
    Sketcher.Constraint("Vertical", 0),
    Sketcher.Constraint("Horizontal", 1),
    Sketcher.Constraint("Vertical", 2),
    Sketcher.Constraint("Horizontal", 3),
    Sketcher.Constraint("DistanceY", 0, 1, 0, 2, Q("69.6 in")),
    Sketcher.Constraint("DistanceX", -1, 1, 0, 2, Q("120 in")),
    Sketcher.Constraint("DistanceX", 1, 1, 1, 2, Q("3.96 in")),
    Sketcher.Constraint("DistanceY", 0, 2, -1, 1, Q("3.96 in")),
])
pad21 = body2.newObject("PartDesign::Pad", "Pad020")
pad21.Profile = sketch29
pad21.Length = Q("24 in")
pad21.Reversed = True

doc.recompute()
